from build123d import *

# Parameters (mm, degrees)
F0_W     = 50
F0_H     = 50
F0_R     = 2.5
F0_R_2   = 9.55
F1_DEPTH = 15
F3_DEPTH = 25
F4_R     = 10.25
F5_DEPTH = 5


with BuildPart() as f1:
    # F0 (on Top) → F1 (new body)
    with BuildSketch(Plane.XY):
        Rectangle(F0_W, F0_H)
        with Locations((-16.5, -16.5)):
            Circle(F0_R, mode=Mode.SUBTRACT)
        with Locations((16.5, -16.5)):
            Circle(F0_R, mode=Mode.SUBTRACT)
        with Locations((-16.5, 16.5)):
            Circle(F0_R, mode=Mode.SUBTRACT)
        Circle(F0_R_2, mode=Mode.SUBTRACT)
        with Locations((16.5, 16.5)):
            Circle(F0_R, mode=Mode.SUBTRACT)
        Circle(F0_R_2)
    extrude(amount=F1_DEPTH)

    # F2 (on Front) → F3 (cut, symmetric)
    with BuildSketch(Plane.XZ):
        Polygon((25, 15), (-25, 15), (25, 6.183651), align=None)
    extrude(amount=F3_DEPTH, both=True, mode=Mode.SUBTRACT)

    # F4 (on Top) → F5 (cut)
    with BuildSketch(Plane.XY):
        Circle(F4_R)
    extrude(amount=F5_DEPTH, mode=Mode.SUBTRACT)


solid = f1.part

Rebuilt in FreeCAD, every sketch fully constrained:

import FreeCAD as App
import Part
import Sketcher
Q = App.Units.Quantity


def add_polygon(sketch, points):
    """Adds a closed chain of lines whose ends are joined by coincident constraints."""
    first, n = sketch.GeometryCount, len(points)
    for a, b in zip(points, points[1:] + points[:1]):
        sketch.addGeometry(Part.LineSegment(App.Vector(*a, 0), App.Vector(*b, 0)), False)
    for i in range(n):
        sketch.addConstraint(Sketcher.Constraint("Coincident", first + i, 2, first + (i + 1) % n, 1))

doc = App.newDocument("Part")
body = doc.addObject("PartDesign::Body", "Body")

# Sketch on XY plane
sketch1 = body.newObject("Sketcher::SketchObject", "Sketch")
sketch1.AttachmentSupport = (doc.getObject("XY_Plane"), [""])
sketch1.MapMode = "FlatFace"
add_polygon(sketch1, [(-25, 25), (-25, -25), (25, -25), (25, 25)])  # lines 0-3
sketch1.addGeometry(Part.Circle(App.Vector(-16.5, -16.5, 0), App.Vector(0, 0, 1), 2.5), False)  # 4
sketch1.addGeometry(Part.Circle(App.Vector(16.5, -16.5, 0), App.Vector(0, 0, 1), 2.5), False)  # 5
sketch1.addGeometry(Part.Circle(App.Vector(-16.5, 16.5, 0), App.Vector(0, 0, 1), 2.5), False)  # 6
sketch1.addGeometry(Part.Circle(App.Vector(16.5, 16.5, 0), App.Vector(0, 0, 1), 2.5), False)  # 7
sketch1.addConstraint([
    Sketcher.Constraint("Vertical", 0),
    Sketcher.Constraint("Horizontal", 1),
    Sketcher.Constraint("Vertical", 2),
    Sketcher.Constraint("Horizontal", 3),
    Sketcher.Constraint("Equal", 4, 5),
    Sketcher.Constraint("Equal", 5, 6),
    Sketcher.Constraint("Equal", 6, 7),
    Sketcher.Constraint("Symmetric", 5, 3, 6, 3, -1, 1),
    Sketcher.Constraint("Symmetric", 4, 3, 7, 3, -1, 1),
    Sketcher.Constraint("Symmetric", 0, 2, 2, 2, -1, 1),
    Sketcher.Constraint("Symmetric", 4, 3, 5, 3, -2),
    Sketcher.Constraint("Equal", 3, 0),
    Sketcher.Constraint("Diameter", 4, Q("5 mm")),
    Sketcher.Constraint("DistanceX", 1, 1, 1, 2, Q("50 mm")),
    Sketcher.Constraint("DistanceX", 4, 3, 5, 3, Q("33 mm")),
    Sketcher.Constraint("DistanceY", 4, 3, 6, 3, Q("33 mm")),
])
pad1 = body.newObject("PartDesign::Pad", "Pad")
pad1.Profile = sketch1
pad1.Length = 15

# Sketch on XZ plane
sketch2 = body.newObject("Sketcher::SketchObject", "Sketch001")
sketch2.AttachmentSupport = (doc.getObject("XZ_Plane"), [""])
sketch2.MapMode = "FlatFace"
add_polygon(sketch2, [(25, 15), (-25, 15), (25, 6.183651)])  # lines 0-2
sketch2.addConstraint([
    Sketcher.Constraint("Horizontal", 0),
    Sketcher.Constraint("Vertical", 2),
    Sketcher.Constraint("DistanceX", 0, 2, 0, 1, Q("50 mm")),
    Sketcher.Constraint("Angle", 1, Q("-10 deg")),
    Sketcher.Constraint("DistanceX", 0, 2, -1, 1, Q("25 mm")),
    Sketcher.Constraint("DistanceY", -1, 1, 0, 2, Q("15 mm")),
])
pocket1 = body.newObject("PartDesign::Pocket", "Pocket")
pocket1.Profile = sketch2
pocket1.Length = 50
pocket1.Midplane = True

# Sketch on XY plane
sketch3 = body.newObject("Sketcher::SketchObject", "Sketch002")
sketch3.AttachmentSupport = (doc.getObject("XY_Plane"), [""])
sketch3.MapMode = "FlatFace"
sketch3.addGeometry(Part.Circle(App.Vector(0, 0, 0), App.Vector(0, 0, 1), 10.25), False)
sketch3.addConstraint([
    Sketcher.Constraint("Coincident", 0, 3, -1, 1),
    Sketcher.Constraint("Diameter", 0, Q("20.5 mm")),
])
pocket2 = body.newObject("PartDesign::Pocket", "Pocket001")
pocket2.Profile = sketch3
pocket2.Length = 5
pocket2.Reversed = True

doc.recompute()
